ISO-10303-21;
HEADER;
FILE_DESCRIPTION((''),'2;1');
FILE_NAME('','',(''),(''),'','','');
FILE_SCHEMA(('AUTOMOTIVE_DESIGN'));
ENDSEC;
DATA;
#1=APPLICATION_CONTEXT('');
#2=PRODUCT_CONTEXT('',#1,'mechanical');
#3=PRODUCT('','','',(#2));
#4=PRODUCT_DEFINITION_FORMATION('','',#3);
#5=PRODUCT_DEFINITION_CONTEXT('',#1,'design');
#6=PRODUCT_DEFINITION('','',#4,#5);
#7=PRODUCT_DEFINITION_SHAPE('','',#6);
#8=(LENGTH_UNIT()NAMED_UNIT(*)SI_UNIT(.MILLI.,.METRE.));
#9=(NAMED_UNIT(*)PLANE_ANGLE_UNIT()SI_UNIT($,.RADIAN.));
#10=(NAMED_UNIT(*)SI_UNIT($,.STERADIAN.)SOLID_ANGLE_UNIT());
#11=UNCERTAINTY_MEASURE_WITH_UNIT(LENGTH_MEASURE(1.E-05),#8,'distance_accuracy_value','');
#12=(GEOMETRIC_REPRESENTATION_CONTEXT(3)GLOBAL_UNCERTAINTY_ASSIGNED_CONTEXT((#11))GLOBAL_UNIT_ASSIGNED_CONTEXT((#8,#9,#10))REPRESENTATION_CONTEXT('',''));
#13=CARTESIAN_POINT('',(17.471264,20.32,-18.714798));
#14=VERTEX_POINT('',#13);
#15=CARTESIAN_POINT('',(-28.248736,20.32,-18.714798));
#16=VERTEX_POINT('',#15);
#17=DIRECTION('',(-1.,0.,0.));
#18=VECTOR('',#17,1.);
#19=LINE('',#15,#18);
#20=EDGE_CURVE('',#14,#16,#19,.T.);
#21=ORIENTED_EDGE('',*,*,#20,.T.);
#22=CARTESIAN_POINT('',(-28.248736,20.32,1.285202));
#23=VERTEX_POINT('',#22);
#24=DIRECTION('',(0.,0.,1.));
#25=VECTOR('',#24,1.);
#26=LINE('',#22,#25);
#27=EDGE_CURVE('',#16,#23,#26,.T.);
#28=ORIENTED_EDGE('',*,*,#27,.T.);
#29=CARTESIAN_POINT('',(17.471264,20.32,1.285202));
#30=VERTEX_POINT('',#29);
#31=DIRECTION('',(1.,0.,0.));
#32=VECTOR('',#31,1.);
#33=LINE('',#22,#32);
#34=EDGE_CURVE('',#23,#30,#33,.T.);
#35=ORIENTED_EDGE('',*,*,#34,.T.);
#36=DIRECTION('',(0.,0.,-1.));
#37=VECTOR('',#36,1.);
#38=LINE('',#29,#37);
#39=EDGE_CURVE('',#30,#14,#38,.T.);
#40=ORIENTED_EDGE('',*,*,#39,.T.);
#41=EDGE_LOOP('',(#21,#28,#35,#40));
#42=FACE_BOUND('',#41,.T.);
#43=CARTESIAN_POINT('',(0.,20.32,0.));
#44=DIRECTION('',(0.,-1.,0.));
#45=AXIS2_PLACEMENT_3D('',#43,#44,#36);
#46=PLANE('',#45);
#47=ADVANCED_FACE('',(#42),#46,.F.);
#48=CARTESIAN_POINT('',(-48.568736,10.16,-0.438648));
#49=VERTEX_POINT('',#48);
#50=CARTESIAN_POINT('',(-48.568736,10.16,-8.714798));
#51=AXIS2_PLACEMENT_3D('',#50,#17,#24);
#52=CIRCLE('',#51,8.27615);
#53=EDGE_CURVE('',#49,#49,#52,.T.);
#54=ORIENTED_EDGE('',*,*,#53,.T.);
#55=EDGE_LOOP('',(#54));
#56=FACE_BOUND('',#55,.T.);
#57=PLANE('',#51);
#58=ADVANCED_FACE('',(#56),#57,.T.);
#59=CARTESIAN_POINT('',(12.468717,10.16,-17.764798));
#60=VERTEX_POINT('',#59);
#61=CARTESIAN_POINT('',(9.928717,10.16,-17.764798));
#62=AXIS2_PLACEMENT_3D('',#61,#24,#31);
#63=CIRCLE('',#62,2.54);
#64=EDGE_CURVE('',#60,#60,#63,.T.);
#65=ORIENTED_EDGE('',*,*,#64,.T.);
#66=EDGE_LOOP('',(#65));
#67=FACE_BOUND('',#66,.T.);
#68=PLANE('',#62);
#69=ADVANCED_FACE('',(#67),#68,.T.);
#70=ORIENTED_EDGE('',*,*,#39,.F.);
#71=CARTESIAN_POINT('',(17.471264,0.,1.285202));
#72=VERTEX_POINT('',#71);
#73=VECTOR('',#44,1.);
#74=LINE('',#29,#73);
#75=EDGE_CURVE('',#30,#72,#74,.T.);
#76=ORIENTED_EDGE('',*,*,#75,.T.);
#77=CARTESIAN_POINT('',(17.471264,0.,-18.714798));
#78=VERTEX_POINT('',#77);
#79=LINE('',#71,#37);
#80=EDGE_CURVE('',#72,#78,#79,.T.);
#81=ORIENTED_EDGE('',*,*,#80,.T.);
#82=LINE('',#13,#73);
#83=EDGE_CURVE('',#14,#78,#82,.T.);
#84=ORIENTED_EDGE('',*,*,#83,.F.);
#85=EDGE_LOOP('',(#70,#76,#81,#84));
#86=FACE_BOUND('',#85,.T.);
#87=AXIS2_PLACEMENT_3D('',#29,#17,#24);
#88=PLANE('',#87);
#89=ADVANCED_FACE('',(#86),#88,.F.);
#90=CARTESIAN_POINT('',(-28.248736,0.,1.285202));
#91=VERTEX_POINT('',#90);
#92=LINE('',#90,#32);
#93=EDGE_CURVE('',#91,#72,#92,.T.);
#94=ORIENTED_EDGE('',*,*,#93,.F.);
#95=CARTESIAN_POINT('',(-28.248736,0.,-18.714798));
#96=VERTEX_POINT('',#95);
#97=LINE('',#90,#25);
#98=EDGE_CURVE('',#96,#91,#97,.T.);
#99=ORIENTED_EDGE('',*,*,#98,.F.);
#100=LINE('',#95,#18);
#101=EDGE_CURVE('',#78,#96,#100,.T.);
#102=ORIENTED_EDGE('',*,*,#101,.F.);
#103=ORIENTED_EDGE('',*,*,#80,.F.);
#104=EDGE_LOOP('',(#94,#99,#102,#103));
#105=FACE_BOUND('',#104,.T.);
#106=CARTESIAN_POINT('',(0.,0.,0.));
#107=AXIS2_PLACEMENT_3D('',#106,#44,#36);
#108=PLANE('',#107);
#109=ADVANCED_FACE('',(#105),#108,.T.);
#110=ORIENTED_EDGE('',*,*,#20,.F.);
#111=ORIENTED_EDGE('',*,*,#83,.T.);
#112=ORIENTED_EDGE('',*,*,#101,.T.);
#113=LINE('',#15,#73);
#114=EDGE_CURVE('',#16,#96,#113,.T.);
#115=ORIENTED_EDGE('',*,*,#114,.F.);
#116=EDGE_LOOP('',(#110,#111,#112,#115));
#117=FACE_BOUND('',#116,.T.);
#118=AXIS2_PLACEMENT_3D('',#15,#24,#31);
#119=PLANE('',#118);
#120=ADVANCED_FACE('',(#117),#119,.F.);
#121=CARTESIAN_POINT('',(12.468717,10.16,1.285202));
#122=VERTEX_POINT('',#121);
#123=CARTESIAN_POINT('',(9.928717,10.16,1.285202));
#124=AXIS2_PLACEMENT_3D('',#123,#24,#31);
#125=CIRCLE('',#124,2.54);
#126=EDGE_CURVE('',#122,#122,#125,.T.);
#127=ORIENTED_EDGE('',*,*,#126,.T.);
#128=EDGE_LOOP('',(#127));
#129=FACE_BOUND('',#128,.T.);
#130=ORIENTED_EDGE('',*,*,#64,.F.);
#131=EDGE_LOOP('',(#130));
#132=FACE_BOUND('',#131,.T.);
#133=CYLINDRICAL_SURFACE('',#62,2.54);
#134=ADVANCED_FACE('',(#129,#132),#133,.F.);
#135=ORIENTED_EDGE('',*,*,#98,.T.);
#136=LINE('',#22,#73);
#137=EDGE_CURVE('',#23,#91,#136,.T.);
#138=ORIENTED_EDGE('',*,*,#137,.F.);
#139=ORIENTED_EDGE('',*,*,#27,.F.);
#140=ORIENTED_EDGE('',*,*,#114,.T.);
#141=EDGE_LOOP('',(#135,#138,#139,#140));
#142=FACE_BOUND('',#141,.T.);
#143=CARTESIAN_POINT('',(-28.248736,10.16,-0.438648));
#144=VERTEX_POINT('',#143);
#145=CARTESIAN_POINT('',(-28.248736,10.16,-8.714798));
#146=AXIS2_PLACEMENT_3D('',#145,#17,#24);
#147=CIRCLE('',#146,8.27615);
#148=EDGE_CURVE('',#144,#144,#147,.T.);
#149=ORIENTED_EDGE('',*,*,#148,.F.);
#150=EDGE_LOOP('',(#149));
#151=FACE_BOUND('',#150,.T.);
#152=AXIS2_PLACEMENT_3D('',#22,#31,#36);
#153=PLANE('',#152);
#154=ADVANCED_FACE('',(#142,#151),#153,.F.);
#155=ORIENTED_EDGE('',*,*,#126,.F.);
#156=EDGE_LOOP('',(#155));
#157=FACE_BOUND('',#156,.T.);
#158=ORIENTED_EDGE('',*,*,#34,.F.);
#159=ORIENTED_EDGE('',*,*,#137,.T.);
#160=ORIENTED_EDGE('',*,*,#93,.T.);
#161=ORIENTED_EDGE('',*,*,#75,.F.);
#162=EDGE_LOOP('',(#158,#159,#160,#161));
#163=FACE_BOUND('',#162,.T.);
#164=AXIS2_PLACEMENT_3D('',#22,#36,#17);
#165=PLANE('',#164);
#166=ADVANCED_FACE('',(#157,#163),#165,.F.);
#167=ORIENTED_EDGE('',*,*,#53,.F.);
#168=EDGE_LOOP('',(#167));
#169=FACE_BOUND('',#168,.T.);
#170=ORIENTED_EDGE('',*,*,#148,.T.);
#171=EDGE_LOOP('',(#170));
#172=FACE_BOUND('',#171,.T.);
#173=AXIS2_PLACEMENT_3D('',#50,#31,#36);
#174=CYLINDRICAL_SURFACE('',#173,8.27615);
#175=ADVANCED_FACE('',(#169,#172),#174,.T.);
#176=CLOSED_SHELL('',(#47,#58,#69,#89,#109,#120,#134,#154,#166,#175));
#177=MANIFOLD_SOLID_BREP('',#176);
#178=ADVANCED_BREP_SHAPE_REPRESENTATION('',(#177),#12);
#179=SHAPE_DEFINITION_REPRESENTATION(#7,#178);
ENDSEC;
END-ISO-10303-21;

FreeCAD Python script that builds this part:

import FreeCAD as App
import Part
import Sketcher

V = App.Vector
Q = App.Units.Quantity


def add_polygon(sketch, points):
    """Adds a closed chain of lines whose ends are joined by coincident constraints."""
    first, n = sketch.GeometryCount, len(points)
    for a, b in zip(points, points[1:] + points[:1]):
        sketch.addGeometry(Part.LineSegment(App.Vector(*a, 0), App.Vector(*b, 0)), False)
    for i in range(n):
        sketch.addConstraint(Sketcher.Constraint("Coincident", first + i, 2, first + (i + 1) % n, 1))

doc = App.newDocument("Part")
body = doc.addObject("PartDesign::Body", "Body")

sketch1 = doc.addObject("Sketcher::SketchObject", "Sketch")
body.addObject(sketch1)
sketch1.AttachmentSupport = (doc.XZ_Plane, [""])
sketch1.MapMode = "FlatFace"
add_polygon(sketch1, [(-28, -19), (-28, 1), (17, 1), (17, -19)])
sketch1.addConstraint([
    Sketcher.Constraint("Vertical", 0),
    Sketcher.Constraint("Horizontal", 1),
    Sketcher.Constraint("Vertical", 2),
    Sketcher.Constraint("Horizontal", 3),
    Sketcher.Constraint("DistanceX", 1, 1, 1, 2, Q("1.8 in")),
    Sketcher.Constraint("DistanceY", 0, 1, 0, 2, Q("20 mm")),
    Sketcher.Constraint("DistanceY", -1, 1, 0, 2, Q("1.285202 mm")),
    Sketcher.Constraint("DistanceX", 0, 2, -1, 1, Q("28.248736 mm")),
])
pad1 = doc.addObject("PartDesign::Pad", "Pad")
body.addObject(pad1)
pad1.Profile = sketch1
pad1.Length = Q("0.8 in")
pad1.Reversed = True

sketch2 = doc.addObject("Sketcher::SketchObject", "Sketch001")
body.addObject(sketch2)
sketch2.AttachmentSupport = (doc.YZ_Plane, [""])
sketch2.MapMode = "FlatFace"
sketch2.AttachmentOffset = App.Placement(V(0, 0, -28.248736), App.Rotation())
sketch2.addGeometry(Part.Circle(V(10, -9, 0), V(0, 0, 1), 8), False)
sketch2.addConstraint([
    Sketcher.Constraint("DistanceX", -1, 1, 0, 3, Q("0.4 in")),
    Sketcher.Constraint("Diameter", 0, Q("16.5523 mm")),
    Sketcher.Constraint("DistanceY", 0, 3, -1, 1, Q("8.714798 mm")),
])
pad2 = doc.addObject("PartDesign::Pad", "Pad001")
body.addObject(pad2)
pad2.Profile = sketch2
pad2.Length = Q("0.8 in")
pad2.Reversed = True

sketch3 = doc.addObject("Sketcher::SketchObject", "Sketch002")
body.addObject(sketch3)
sketch3.AttachmentSupport = (doc.XY_Plane, [""])
sketch3.MapMode = "FlatFace"
sketch3.AttachmentOffset = App.Placement(V(0, 0, 1.285202), App.Rotation())
sketch3.addGeometry(Part.Circle(V(9.9, 10.2, 0), V(0, 0, 1), 2.5), False)
sketch3.addConstraint([
    Sketcher.Constraint("Diameter", 0, Q("0.2 in")),
    Sketcher.Constraint("DistanceY", -1, 1, 0, 3, Q("0.4 in")),
    Sketcher.Constraint("DistanceX", -1, 1, 0, 3, Q("9.928717 mm")),
])
pocket1 = doc.addObject("PartDesign::Pocket", "Pocket")
body.addObject(pocket1)
pocket1.Profile = sketch3
pocket1.Length = Q("0.75 in")

doc.recompute()
